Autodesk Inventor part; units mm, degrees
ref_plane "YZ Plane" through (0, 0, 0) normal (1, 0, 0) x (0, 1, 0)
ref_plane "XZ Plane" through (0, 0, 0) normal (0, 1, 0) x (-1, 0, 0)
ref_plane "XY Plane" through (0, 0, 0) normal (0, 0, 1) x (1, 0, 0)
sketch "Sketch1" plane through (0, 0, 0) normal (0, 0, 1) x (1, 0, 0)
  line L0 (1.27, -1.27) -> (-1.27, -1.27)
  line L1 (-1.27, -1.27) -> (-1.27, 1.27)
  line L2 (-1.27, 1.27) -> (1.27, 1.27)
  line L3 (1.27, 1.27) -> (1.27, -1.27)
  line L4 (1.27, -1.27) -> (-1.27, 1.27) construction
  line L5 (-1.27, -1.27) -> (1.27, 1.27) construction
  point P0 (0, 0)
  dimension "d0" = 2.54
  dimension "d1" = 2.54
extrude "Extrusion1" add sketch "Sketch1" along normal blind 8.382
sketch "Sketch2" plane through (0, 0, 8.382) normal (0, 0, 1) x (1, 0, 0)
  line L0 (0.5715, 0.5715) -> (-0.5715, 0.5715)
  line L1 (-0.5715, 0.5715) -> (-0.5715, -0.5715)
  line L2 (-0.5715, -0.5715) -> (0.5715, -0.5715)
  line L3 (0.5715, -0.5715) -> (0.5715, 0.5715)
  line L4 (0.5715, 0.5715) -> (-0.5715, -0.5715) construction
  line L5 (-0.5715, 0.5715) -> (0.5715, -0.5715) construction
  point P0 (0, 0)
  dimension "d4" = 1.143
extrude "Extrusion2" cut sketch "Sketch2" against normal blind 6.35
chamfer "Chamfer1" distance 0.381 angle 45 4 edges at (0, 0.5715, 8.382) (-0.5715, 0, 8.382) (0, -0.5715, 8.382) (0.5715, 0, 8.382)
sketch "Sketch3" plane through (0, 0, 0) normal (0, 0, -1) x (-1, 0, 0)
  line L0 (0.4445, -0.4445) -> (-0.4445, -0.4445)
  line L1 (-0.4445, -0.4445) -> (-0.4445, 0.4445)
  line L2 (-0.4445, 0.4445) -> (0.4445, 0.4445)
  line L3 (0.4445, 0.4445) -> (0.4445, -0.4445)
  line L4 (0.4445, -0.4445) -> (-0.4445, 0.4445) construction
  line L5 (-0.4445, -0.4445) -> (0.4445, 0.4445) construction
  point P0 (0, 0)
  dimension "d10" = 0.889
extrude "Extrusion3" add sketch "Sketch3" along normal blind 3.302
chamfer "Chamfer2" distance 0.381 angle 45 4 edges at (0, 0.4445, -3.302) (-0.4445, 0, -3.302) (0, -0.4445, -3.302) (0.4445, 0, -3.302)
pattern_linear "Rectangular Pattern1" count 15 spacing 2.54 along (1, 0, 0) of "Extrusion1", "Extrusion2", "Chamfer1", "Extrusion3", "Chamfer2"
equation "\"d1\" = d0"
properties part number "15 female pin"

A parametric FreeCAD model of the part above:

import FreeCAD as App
import Part
import Sketcher
from FreeCAD import Vector
Q = App.Units.Quantity


def edges_at(feature, points):
    """Names of the edges that pass closest to the given points."""
    edges = feature.Shape.Edges
    near = lambda p: min(range(len(edges)), key=lambda i: edges[i].distToShape(Part.Vertex(*p))[0])
    return sorted({f"Edge{near(p) + 1}" for p in points})


def add_polygon(sketch, points):
    """Adds a closed chain of lines whose ends are joined by coincident constraints."""
    first, n = sketch.GeometryCount, len(points)
    for a, b in zip(points, points[1:] + points[:1]):
        sketch.addGeometry(Part.LineSegment(App.Vector(*a, 0), App.Vector(*b, 0)), False)
    for i in range(n):
        sketch.addConstraint(Sketcher.Constraint("Coincident", first + i, 2, first + (i + 1) % n, 1))

doc = App.newDocument("Part")
body = doc.addObject("PartDesign::Body", "Body")

# Sketch on XY plane
sketch1 = body.newObject("Sketcher::SketchObject", "Sketch")
sketch1.AttachmentSupport = (doc.getObject("XY_Plane"), [""])
sketch1.MapMode = "FlatFace"
add_polygon(sketch1, [(-1.27, -1.27), (1.27, -1.27), (1.27, 1.27), (-1.27, 1.27)])  # lines 0-3
sketch1.addConstraint(Sketcher.Constraint("Horizontal", 0))
sketch1.addConstraint(Sketcher.Constraint("Vertical", 1))
sketch1.addConstraint(Sketcher.Constraint("Horizontal", 2))
sketch1.addConstraint(Sketcher.Constraint("Vertical", 3))
sketch1.addConstraint(Sketcher.Constraint("Symmetric", 0, 2, 2, 2, -1, 1))
sketch1.addConstraint(Sketcher.Constraint("Equal", 2, 1))
sketch1.addConstraint(Sketcher.Constraint("DistanceX", 0, 1, 0, 2, Q("0.1 in")))
pad1 = body.newObject("PartDesign::Pad", "Pad")
pad1.Profile = sketch1
pad1.Length = Q("0.33 in")

# Sketch on XY plane
sketch2 = body.newObject("Sketcher::SketchObject", "Sketch001")
sketch2.AttachmentSupport = (doc.getObject("XY_Plane"), [""])
sketch2.MapMode = "FlatFace"
sketch2.AttachmentOffset = App.Placement(Vector(0, 0, 0.33 * 25.4), App.Rotation())
add_polygon(sketch2, [(0.5715, -0.5715), (0.5715, 0.5715), (-0.5715, 0.5715), (-0.5715, -0.5715)])  # lines 0-3
sketch2.addConstraint(Sketcher.Constraint("Vertical", 0))
sketch2.addConstraint(Sketcher.Constraint("Horizontal", 1))
sketch2.addConstraint(Sketcher.Constraint("Vertical", 2))
sketch2.addConstraint(Sketcher.Constraint("Horizontal", 3))
sketch2.addConstraint(Sketcher.Constraint("Symmetric", 0, 2, 2, 2, -1, 1))
sketch2.addConstraint(Sketcher.Constraint("Equal", 3, 0))
sketch2.addConstraint(Sketcher.Constraint("DistanceX", 1, 2, 1, 1, Q("0.045 in")))
pocket1 = body.newObject("PartDesign::Pocket", "Pocket")
pocket1.Profile = sketch2
pocket1.Length = Q("0.25 in")
doc.recompute()

chamfer = body.newObject("PartDesign::Chamfer", "Chamfer")
chamfer.Base = (pocket1, edges_at(pocket1, [
    (0, 0.572, 8.382),
    (-0.572, 0, 8.382),
    (0, -0.572, 8.382),
    (0.572, 0, 8.382),
]))
chamfer.Size = Q("0.015 in")

# Sketch on XY plane
sketch3 = body.newObject("Sketcher::SketchObject", "Sketch002")
sketch3.AttachmentSupport = (doc.getObject("XY_Plane"), [""])
sketch3.MapMode = "FlatFace"
add_polygon(sketch3, [(0.4445, -0.4445), (-0.4445, -0.4445), (-0.4445, 0.4445), (0.4445, 0.4445)])  # lines 0-3
sketch3.addConstraint(Sketcher.Constraint("Horizontal", 0))
sketch3.addConstraint(Sketcher.Constraint("Vertical", 1))
sketch3.addConstraint(Sketcher.Constraint("Horizontal", 2))
sketch3.addConstraint(Sketcher.Constraint("Vertical", 3))
sketch3.addConstraint(Sketcher.Constraint("Symmetric", 0, 2, 2, 2, -1, 1))
sketch3.addConstraint(Sketcher.Constraint("Equal", 2, 1))
sketch3.addConstraint(Sketcher.Constraint("DistanceX", 0, 2, 0, 1, Q("0.035 in")))
pad2 = body.newObject("PartDesign::Pad", "Pad001")
pad2.Profile = sketch3
pad2.Length = Q("0.13 in")
pad2.Reversed = True
doc.recompute()

chamfer2 = body.newObject("PartDesign::Chamfer", "Chamfer001")
chamfer2.Base = (pad2, edges_at(pad2, [
    (0, 0.445, -3.302),
    (-0.445, 0, -3.302),
    (0, -0.445, -3.302),
    (0.445, 0, -3.302),
]))
chamfer2.Size = Q("0.015 in")
doc.recompute()

linearpattern = body.newObject("PartDesign::LinearPattern", "LinearPattern")
linearpattern.Originals = [pad1, pocket1, chamfer, pad2, chamfer2]
linearpattern.Direction = (doc.getObject("X_Axis"), [""])
linearpattern.Mode = "offset"
linearpattern.Offset = Q("0.1 in")
linearpattern.Occurrences = 15
body.Tip = linearpattern

doc.recompute()
